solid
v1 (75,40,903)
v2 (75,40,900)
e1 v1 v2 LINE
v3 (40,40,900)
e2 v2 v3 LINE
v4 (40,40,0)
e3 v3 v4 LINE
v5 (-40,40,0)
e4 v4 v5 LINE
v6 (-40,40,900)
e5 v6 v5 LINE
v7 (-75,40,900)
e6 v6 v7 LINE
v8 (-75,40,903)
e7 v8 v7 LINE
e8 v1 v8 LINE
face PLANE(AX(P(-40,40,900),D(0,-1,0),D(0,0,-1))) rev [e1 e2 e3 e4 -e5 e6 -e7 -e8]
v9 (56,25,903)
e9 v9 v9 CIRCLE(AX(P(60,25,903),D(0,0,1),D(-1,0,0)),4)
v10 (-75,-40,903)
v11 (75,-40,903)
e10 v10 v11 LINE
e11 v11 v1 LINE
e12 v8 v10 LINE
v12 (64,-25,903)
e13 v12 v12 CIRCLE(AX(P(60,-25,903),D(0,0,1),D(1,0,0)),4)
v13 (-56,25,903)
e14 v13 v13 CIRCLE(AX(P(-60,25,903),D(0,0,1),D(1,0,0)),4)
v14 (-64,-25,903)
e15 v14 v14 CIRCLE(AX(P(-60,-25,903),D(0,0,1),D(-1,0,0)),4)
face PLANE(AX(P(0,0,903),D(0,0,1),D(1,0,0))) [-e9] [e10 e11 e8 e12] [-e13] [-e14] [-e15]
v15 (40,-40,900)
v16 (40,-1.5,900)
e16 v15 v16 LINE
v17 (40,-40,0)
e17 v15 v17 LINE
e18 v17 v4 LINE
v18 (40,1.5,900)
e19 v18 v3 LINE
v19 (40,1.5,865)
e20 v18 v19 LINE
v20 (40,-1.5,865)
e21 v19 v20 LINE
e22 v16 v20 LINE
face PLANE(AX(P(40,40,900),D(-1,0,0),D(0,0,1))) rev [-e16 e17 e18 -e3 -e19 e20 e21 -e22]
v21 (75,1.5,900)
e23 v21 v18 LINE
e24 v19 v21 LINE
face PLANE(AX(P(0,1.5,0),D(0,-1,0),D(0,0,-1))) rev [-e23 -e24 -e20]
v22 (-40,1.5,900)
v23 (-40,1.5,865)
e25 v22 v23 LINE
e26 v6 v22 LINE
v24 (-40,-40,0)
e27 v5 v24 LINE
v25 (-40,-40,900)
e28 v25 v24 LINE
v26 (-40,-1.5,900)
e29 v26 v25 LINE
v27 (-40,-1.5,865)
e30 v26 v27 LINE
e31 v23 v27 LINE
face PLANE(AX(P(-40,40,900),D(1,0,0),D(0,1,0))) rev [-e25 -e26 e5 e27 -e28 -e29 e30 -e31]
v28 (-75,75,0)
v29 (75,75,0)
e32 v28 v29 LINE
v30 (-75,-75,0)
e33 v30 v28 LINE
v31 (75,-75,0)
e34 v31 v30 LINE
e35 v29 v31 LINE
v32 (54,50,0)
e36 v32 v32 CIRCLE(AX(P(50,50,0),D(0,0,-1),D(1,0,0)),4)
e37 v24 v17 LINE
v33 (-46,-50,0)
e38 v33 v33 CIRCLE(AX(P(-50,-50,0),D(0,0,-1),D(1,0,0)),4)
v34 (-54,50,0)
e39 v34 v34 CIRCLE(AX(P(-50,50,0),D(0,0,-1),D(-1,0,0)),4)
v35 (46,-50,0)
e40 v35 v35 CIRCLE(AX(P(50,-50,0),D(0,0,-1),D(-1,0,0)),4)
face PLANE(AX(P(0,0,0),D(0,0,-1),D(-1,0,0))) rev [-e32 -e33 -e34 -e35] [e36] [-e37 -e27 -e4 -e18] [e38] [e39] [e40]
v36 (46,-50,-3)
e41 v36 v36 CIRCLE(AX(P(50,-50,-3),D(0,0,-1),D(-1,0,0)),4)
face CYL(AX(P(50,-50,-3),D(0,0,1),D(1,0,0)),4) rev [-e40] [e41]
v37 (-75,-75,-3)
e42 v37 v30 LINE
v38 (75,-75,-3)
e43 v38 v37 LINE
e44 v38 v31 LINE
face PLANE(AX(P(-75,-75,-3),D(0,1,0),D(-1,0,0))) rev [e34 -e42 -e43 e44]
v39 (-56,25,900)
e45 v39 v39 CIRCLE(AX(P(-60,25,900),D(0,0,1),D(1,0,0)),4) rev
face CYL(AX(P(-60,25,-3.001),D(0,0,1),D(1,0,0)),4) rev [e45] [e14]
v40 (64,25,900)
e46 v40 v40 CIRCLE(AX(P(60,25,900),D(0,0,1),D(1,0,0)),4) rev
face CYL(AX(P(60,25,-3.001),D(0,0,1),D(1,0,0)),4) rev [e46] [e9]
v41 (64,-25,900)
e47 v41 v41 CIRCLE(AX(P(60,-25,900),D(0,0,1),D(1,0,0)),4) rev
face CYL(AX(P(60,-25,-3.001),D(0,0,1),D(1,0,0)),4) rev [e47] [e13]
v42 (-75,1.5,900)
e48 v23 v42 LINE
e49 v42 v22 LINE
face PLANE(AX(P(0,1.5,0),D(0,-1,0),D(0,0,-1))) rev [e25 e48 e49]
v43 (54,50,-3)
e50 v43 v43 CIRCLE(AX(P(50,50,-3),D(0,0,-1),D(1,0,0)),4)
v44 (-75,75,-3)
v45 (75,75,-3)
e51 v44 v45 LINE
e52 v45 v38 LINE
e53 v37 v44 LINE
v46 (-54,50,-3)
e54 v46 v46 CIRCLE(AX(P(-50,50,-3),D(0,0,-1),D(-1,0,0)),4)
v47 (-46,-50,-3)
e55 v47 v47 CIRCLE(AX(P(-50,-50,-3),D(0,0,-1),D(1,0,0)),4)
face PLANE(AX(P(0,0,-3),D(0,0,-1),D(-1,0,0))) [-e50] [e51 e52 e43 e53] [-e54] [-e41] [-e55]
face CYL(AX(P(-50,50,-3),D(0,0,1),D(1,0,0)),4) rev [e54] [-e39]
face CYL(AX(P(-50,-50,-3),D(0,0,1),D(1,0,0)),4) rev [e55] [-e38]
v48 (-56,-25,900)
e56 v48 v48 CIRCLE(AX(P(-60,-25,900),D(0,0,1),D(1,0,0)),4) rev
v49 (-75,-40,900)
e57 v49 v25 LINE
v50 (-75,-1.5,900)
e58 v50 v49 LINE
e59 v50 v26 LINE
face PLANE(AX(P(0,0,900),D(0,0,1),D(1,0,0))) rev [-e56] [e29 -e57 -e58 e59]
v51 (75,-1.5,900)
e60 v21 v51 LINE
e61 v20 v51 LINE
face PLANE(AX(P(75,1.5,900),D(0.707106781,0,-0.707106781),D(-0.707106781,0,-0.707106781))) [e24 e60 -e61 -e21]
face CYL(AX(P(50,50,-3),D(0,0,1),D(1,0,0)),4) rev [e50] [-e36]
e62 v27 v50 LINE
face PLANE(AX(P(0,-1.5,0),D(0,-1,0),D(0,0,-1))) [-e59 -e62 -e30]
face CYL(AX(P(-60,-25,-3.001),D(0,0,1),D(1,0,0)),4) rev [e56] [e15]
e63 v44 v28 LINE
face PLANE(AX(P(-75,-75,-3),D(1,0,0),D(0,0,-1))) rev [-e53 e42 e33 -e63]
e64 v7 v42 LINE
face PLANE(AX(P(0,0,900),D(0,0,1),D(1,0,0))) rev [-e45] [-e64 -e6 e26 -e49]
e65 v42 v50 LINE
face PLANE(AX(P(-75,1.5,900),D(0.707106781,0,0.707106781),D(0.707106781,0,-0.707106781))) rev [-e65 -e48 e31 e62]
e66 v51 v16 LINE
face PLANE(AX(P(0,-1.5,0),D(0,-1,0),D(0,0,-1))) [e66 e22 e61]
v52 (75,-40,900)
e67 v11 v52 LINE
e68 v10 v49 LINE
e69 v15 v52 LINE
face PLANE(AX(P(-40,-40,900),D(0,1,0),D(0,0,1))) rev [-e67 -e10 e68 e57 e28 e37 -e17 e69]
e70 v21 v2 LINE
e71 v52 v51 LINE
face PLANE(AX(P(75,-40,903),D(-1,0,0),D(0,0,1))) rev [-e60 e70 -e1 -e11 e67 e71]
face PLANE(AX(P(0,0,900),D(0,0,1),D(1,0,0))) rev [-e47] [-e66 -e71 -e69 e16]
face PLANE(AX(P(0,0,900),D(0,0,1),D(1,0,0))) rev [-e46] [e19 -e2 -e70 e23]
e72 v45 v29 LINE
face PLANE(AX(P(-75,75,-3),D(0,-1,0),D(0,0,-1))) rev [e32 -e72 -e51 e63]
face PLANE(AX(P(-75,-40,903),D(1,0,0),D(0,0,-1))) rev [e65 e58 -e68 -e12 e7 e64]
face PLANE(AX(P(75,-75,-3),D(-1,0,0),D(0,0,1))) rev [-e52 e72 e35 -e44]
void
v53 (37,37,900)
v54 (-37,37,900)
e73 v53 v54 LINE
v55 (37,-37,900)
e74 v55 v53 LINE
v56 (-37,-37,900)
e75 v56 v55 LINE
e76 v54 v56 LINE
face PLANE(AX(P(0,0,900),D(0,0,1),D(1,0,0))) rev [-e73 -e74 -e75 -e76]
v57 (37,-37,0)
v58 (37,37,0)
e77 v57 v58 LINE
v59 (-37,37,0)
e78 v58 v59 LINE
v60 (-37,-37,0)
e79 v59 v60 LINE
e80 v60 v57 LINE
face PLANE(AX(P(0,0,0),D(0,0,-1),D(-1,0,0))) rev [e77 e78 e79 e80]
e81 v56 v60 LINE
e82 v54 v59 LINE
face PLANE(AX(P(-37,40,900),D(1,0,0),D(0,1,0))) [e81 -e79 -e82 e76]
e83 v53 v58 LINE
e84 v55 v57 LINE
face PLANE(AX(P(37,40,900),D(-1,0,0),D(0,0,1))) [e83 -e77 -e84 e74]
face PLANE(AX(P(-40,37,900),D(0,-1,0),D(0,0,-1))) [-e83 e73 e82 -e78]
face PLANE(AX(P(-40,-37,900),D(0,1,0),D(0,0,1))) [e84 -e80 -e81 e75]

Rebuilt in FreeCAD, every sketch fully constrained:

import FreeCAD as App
import Part
import Sketcher


def faces_at(feature, points):
    """Names of the faces that lie closest to the given points."""
    faces = feature.Shape.Faces
    near = lambda p: min(range(len(faces)), key=lambda i: faces[i].distToShape(Part.Vertex(*p))[0])
    return sorted({f"Face{near(p) + 1}" for p in points})


def add_polygon(sketch, points):
    """Adds a closed chain of lines whose ends are joined by coincident constraints."""
    first, n = sketch.GeometryCount, len(points)
    for a, b in zip(points, points[1:] + points[:1]):
        sketch.addGeometry(Part.LineSegment(App.Vector(*a, 0), App.Vector(*b, 0)), False)
    for i in range(n):
        sketch.addConstraint(Sketcher.Constraint("Coincident", first + i, 2, first + (i + 1) % n, 1))

doc = App.newDocument("Part")
body = doc.addObject("PartDesign::Body", "Body")

sketch1 = body.newObject("Sketcher::SketchObject", "Sketch")
sketch1.AttachmentSupport = (doc.getObject("XY_Plane"), [""])
sketch1.MapMode = "FlatFace"
add_polygon(sketch1, [(-40, 40), (-40, -40), (40, -40), (40, 40)])
sketch1.addConstraint([
    Sketcher.Constraint("Vertical", 0),
    Sketcher.Constraint("Horizontal", 1),
    Sketcher.Constraint("Vertical", 2),
    Sketcher.Constraint("Horizontal", 3),
    Sketcher.Constraint("Symmetric", 0, 2, 2, 2, -1, 1),
    Sketcher.Constraint("Equal", 3, 0),
    Sketcher.Constraint("DistanceX", 1, 1, 1, 2, 80.0),
])
pad1 = body.newObject("PartDesign::Pad", "Pad")
pad1.Profile = sketch1
pad1.Length = 900
doc.recompute()

thickness = body.newObject("PartDesign::Thickness", "Thickness")
thickness.Base = (pad1, faces_at(pad1, [(0, 0, 900), (0, 0, 0)]))
thickness.Value = 3
thickness.Reversed = True
thickness.Join = "Intersection"

sketch2 = body.newObject("Sketcher::SketchObject", "Sketch001")
sketch2.AttachmentSupport = (doc.getObject("XY_Plane"), [""])
sketch2.MapMode = "FlatFace"
add_polygon(sketch2, [(75, 75), (75, -75), (-75, -75), (-75, 75)])
sketch2.addGeometry(Part.Circle(App.Vector(50, -50, 0), App.Vector(0, 0, 1), 4), False)
sketch2.addGeometry(Part.Circle(App.Vector(-50, -50, 0), App.Vector(0, 0, 1), 4), False)
sketch2.addGeometry(Part.Circle(App.Vector(50, 50, 0), App.Vector(0, 0, 1), 4), False)
sketch2.addGeometry(Part.Circle(App.Vector(-50, 50, 0), App.Vector(0, 0, 1), 4), False)
sketch2.addConstraint([
    Sketcher.Constraint("Vertical", 0),
    Sketcher.Constraint("Horizontal", 1),
    Sketcher.Constraint("Vertical", 2),
    Sketcher.Constraint("Horizontal", 3),
    Sketcher.Constraint("Equal", 4, 5),
    Sketcher.Constraint("Equal", 5, 6),
    Sketcher.Constraint("Equal", 6, 7),
    Sketcher.Constraint("Symmetric", 5, 3, 6, 3, -1, 1),
    Sketcher.Constraint("Symmetric", 4, 3, 7, 3, -1, 1),
    Sketcher.Constraint("Symmetric", 0, 2, 2, 2, -1, 1),
    Sketcher.Constraint("Symmetric", 4, 3, 5, 3, -2),
    Sketcher.Constraint("Equal", 3, 0),
    Sketcher.Constraint("Diameter", 4, 8.0),
    Sketcher.Constraint("DistanceX", 1, 2, 1, 1, 150.0),
    Sketcher.Constraint("DistanceX", -1, 1, 4, 3, 50.0),
    Sketcher.Constraint("DistanceY", 4, 3, -1, 1, 50.0),
])
pad2 = body.newObject("PartDesign::Pad", "Pad001")
pad2.Profile = sketch2
pad2.Length = 3
pad2.Reversed = True

sketch3 = body.newObject("Sketcher::SketchObject", "Sketch002")
sketch3.AttachmentSupport = (doc.getObject("XY_Plane"), [""])
sketch3.MapMode = "FlatFace"
sketch3.AttachmentOffset = App.Placement(App.Vector(0, 0, 900), App.Rotation())
add_polygon(sketch3, [(-75, 40), (-75, -40), (75, -40), (75, 40)])
sketch3.addConstraint([
    Sketcher.Constraint("Vertical", 0),
    Sketcher.Constraint("Horizontal", 1),
    Sketcher.Constraint("Vertical", 2),
    Sketcher.Constraint("Horizontal", 3),
    Sketcher.Constraint("Symmetric", 0, 2, 2, 2, -1, 1),
    Sketcher.Constraint("DistanceX", 1, 1, 1, 2, 150.0),
    Sketcher.Constraint("DistanceY", 0, 2, 0, 1, 80.0),
])
pad3 = body.newObject("PartDesign::Pad", "Pad002")
pad3.Profile = sketch3
pad3.Length = 3

sketch4 = body.newObject("Sketcher::SketchObject", "Sketch003")
sketch4.AttachmentSupport = (doc.getObject("XY_Plane"), [""])
sketch4.MapMode = "FlatFace"
sketch4.AttachmentOffset = App.Placement(App.Vector(0, 0, 903), App.Rotation())
sketch4.addGeometry(Part.Circle(App.Vector(-60, 25, 0), App.Vector(0, 0, 1), 4), False)
sketch4.addConstraint([
    Sketcher.Constraint("Diameter", 0, 8.0),
    Sketcher.Constraint("DistanceX", 0, 3, -1, 1, 60.0),
    Sketcher.Constraint("DistanceY", -1, 1, 0, 3, 25.0),
])
pocket1 = body.newObject("PartDesign::Pocket", "Pocket")
pocket1.Profile = sketch4
pocket1.Type = "UpToFirst"

sketch5 = body.newObject("Sketcher::SketchObject", "Sketch004")
sketch5.AttachmentSupport = (doc.getObject("XY_Plane"), [""])
sketch5.MapMode = "FlatFace"
sketch5.AttachmentOffset = App.Placement(App.Vector(0, 0, 903), App.Rotation())
sketch5.addGeometry(Part.Circle(App.Vector(60, 25, 0), App.Vector(0, 0, 1), 4), False)
sketch5.addConstraint([
    Sketcher.Constraint("Diameter", 0, 8.0),
    Sketcher.Constraint("DistanceX", -1, 1, 0, 3, 60.0),
    Sketcher.Constraint("DistanceY", -1, 1, 0, 3, 25.0),
])
pocket2 = body.newObject("PartDesign::Pocket", "Pocket001")
pocket2.Profile = sketch5
pocket2.Type = "UpToFirst"

sketch6 = body.newObject("Sketcher::SketchObject", "Sketch005")
sketch6.AttachmentSupport = (doc.getObject("XY_Plane"), [""])
sketch6.MapMode = "FlatFace"
sketch6.AttachmentOffset = App.Placement(App.Vector(0, 0, 903), App.Rotation())
sketch6.addGeometry(Part.Circle(App.Vector(60, -25, 0), App.Vector(0, 0, 1), 4), False)
sketch6.addConstraint([
    Sketcher.Constraint("Diameter", 0, 8.0),
    Sketcher.Constraint("DistanceX", -1, 1, 0, 3, 60.0),
    Sketcher.Constraint("DistanceY", 0, 3, -1, 1, 25.0),
])
pocket3 = body.newObject("PartDesign::Pocket", "Pocket002")
pocket3.Profile = sketch6
pocket3.Type = "UpToFirst"

sketch7 = body.newObject("Sketcher::SketchObject", "Sketch006")
sketch7.AttachmentSupport = (doc.getObject("XY_Plane"), [""])
sketch7.MapMode = "FlatFace"
sketch7.AttachmentOffset = App.Placement(App.Vector(0, 0, 903), App.Rotation())
sketch7.addGeometry(Part.Circle(App.Vector(-60, -25, 0), App.Vector(0, 0, 1), 4), False)
sketch7.addConstraint([
    Sketcher.Constraint("Diameter", 0, 8.0),
    Sketcher.Constraint("DistanceX", 0, 3, -1, 1, 60.0),
    Sketcher.Constraint("DistanceY", 0, 3, -1, 1, 25.0),
])
pocket4 = body.newObject("PartDesign::Pocket", "Pocket003")
pocket4.Profile = sketch7
pocket4.Type = "UpToFirst"

sketch8 = body.newObject("Sketcher::SketchObject", "Sketch007")
sketch8.AttachmentSupport = (doc.getObject("XZ_Plane"), [""])
sketch8.MapMode = "FlatFace"
add_polygon(sketch8, [(-75, 900), (-40, 900), (-40, 865)])
sketch8.addConstraint([
    Sketcher.Constraint("Horizontal", 0),
    Sketcher.Constraint("Vertical", 1),
    Sketcher.Constraint("Equal", 0, 1),
    Sketcher.Constraint("DistanceX", 0, 1, 0, 2, 35.0),
    Sketcher.Constraint("DistanceX", 0, 2, -1, 1, 40.0),
    Sketcher.Constraint("DistanceY", -1, 1, 0, 2, 900.0),
])
pad4 = body.newObject("PartDesign::Pad", "Pad003")
pad4.Profile = sketch8
pad4.Length = 3
pad4.Midplane = True
doc.recompute()

mirrored = body.newObject("PartDesign::Mirrored", "Mirrored")
mirrored.Originals = [pad4]
mirrored.MirrorPlane = (doc.getObject("YZ_Plane"), [""])
body.Tip = mirrored

doc.recompute()
